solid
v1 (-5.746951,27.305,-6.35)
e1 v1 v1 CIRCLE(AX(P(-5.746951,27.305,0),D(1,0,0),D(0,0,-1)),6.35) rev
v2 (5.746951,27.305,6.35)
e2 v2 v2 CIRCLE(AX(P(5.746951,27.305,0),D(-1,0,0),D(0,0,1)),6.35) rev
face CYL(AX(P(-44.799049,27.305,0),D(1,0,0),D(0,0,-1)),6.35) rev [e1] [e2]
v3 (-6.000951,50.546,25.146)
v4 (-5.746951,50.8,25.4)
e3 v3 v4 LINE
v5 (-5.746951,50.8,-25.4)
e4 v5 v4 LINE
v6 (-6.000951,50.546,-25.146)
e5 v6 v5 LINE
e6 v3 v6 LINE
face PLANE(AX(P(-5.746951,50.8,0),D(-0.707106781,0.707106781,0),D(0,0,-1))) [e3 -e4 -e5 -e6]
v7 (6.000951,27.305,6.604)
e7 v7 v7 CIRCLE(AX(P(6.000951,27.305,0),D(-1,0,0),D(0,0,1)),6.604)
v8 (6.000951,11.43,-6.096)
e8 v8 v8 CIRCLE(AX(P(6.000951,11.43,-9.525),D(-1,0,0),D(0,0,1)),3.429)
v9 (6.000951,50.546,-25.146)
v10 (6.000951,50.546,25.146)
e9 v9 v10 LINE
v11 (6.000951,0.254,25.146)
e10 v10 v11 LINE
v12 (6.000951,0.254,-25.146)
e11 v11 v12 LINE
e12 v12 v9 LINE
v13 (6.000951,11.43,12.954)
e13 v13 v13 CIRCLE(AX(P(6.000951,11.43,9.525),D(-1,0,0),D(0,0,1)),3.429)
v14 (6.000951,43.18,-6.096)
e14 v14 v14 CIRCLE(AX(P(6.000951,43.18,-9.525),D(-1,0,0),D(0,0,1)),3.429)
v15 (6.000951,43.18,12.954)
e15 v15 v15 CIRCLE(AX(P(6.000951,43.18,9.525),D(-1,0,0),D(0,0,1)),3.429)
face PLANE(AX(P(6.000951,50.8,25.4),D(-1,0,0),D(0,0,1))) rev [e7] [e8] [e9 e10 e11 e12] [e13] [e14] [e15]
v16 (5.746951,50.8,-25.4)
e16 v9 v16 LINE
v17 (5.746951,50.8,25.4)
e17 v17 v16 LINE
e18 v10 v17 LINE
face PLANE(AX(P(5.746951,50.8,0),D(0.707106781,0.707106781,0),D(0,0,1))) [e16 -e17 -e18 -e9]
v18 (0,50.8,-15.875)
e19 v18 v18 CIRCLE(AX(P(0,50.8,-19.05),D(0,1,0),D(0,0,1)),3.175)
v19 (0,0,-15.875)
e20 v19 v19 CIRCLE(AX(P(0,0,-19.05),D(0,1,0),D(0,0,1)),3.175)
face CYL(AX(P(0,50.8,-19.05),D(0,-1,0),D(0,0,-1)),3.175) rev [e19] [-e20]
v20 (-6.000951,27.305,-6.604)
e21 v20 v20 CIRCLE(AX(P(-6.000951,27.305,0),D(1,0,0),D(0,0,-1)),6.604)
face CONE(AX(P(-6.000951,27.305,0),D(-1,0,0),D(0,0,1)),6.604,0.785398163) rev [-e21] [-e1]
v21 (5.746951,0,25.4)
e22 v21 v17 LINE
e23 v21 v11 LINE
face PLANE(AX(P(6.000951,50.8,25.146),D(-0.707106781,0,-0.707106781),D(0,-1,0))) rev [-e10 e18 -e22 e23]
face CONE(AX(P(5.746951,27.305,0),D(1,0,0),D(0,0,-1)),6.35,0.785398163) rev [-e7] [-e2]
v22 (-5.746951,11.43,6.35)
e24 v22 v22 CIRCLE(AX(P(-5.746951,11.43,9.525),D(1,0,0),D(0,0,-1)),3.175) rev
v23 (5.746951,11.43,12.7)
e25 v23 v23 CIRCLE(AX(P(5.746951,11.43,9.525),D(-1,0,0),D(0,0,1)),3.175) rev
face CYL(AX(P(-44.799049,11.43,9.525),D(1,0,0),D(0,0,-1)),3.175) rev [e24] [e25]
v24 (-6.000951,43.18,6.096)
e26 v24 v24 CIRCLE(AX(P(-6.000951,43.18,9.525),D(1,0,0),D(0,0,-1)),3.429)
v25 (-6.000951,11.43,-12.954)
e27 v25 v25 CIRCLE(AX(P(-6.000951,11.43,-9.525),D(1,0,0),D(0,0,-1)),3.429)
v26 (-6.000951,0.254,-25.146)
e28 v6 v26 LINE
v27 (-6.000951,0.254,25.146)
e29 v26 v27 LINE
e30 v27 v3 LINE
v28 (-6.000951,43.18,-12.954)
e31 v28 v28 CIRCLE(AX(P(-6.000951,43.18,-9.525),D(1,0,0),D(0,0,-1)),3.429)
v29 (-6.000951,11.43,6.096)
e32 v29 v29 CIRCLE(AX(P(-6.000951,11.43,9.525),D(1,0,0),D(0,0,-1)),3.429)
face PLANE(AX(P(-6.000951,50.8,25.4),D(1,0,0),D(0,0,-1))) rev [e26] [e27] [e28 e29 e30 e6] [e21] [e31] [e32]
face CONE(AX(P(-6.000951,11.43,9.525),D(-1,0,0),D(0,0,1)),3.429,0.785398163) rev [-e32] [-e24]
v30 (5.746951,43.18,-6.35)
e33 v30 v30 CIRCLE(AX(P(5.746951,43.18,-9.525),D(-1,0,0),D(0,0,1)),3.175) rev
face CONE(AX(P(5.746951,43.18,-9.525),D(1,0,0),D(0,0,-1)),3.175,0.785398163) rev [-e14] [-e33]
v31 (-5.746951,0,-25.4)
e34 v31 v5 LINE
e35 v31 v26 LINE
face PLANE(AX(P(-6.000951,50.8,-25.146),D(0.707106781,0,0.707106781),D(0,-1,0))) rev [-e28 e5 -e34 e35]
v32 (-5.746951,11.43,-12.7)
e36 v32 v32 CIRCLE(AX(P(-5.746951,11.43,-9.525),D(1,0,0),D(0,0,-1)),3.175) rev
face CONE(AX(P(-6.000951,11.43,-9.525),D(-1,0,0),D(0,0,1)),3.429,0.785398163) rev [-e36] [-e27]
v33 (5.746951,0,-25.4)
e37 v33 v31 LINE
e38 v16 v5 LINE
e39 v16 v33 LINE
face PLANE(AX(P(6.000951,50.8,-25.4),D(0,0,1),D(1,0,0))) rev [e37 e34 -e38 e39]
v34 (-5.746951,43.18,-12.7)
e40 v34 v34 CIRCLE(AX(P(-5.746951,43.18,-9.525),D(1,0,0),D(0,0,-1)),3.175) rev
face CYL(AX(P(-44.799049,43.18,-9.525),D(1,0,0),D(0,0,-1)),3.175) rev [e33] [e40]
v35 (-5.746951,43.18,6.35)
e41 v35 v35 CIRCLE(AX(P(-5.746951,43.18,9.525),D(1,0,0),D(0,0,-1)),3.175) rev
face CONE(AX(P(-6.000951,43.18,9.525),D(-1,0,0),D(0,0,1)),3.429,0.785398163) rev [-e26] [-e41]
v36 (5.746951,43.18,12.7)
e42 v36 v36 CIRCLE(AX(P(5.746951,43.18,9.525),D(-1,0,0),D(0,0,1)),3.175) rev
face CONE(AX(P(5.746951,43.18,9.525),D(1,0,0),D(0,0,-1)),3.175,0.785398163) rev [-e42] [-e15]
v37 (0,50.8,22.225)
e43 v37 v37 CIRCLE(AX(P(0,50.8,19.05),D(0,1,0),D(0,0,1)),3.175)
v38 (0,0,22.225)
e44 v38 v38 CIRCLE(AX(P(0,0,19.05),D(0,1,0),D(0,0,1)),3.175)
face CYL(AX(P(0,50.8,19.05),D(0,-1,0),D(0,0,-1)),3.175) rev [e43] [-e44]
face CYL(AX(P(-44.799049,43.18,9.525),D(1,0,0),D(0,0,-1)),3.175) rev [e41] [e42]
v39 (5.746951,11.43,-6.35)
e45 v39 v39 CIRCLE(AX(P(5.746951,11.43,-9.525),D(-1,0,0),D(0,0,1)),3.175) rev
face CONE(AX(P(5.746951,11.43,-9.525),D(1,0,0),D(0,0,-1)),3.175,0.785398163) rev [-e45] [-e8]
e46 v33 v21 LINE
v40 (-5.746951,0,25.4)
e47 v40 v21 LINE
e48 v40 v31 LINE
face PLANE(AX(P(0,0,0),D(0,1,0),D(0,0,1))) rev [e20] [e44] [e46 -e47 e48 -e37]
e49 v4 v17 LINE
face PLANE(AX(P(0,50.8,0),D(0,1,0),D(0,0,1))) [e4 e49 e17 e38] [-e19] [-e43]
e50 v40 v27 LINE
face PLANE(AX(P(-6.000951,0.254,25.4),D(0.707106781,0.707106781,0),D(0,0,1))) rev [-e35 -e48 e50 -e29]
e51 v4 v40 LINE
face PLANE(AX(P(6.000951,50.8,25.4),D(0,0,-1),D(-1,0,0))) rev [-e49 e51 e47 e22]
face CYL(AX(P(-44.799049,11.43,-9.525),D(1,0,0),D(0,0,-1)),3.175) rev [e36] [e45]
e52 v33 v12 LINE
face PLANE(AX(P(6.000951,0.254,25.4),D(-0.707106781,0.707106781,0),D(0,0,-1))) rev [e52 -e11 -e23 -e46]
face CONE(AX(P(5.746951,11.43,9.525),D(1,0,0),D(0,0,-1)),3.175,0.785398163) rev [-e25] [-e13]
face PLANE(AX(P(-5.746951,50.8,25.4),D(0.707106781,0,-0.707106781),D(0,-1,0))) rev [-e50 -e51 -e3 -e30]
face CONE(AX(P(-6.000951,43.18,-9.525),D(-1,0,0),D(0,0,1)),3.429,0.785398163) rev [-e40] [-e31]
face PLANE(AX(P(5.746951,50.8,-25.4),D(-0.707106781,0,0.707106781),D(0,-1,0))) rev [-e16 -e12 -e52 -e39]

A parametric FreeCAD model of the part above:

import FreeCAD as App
import Part
import Sketcher
Q = App.Units.Quantity


def edges_at(feature, points):
    """Names of the edges that pass closest to the given points."""
    edges = feature.Shape.Edges
    near = lambda p: min(range(len(edges)), key=lambda i: edges[i].distToShape(Part.Vertex(*p))[0])
    return sorted({f"Edge{near(p) + 1}" for p in points})


def add_polygon(sketch, points):
    """Adds a closed chain of lines whose ends are joined by coincident constraints."""
    first, n = sketch.GeometryCount, len(points)
    for a, b in zip(points, points[1:] + points[:1]):
        sketch.addGeometry(Part.LineSegment(App.Vector(*a, 0), App.Vector(*b, 0)), False)
    for i in range(n):
        sketch.addConstraint(Sketcher.Constraint("Coincident", first + i, 2, first + (i + 1) % n, 1))

doc = App.newDocument("Part")
body = doc.addObject("PartDesign::Body", "Body")

# Sketch on XZ plane
sketch1 = body.newObject("Sketcher::SketchObject", "Sketch")
sketch1.AttachmentSupport = (doc.getObject("XZ_Plane"), [""])
sketch1.MapMode = "FlatFace"
add_polygon(sketch1, [(-6, -25.4), (-6, 25.4), (6, 25.4), (6, -25.4)])  # lines 0-3
sketch1.addGeometry(Part.Circle(App.Vector(0, 19.1, 0), App.Vector(0, 0, 1), 3.2), False)  # 4
sketch1.addGeometry(Part.Circle(App.Vector(0, -19.1, 0), App.Vector(0, 0, 1), 3.2), False)  # 5
sketch1.addConstraint([
    Sketcher.Constraint("Vertical", 0),
    Sketcher.Constraint("Horizontal", 1),
    Sketcher.Constraint("Vertical", 2),
    Sketcher.Constraint("Horizontal", 3),
    Sketcher.Constraint("Equal", 4, 5),
    Sketcher.Constraint("Symmetric", 4, 3, 5, 3, -1, 1),
    Sketcher.Constraint("Symmetric", 0, 2, 2, 2, -1, 1),
    Sketcher.Constraint("PointOnObject", 4, 3, -2),
    Sketcher.Constraint("Diameter", 4, Q("0.25 in")),
    Sketcher.Constraint("DistanceY", 0, 1, 0, 2, Q("2 in")),
    Sketcher.Constraint("DistanceY", 5, 3, 4, 3, Q("1.5 in")),
    Sketcher.Constraint("DistanceX", 1, 1, 1, 2, 12.001903),
])
pad1 = body.newObject("PartDesign::Pad", "Pad")
pad1.Profile = sketch1
pad1.Length = Q("2 in")
pad1.Reversed = True

# Sketch on YZ plane
sketch2 = body.newObject("Sketcher::SketchObject", "Sketch001")
sketch2.AttachmentSupport = (doc.getObject("YZ_Plane"), [""])
sketch2.MapMode = "FlatFace"
sketch2.AttachmentOffset = App.Placement(App.Vector(0, 0, 6.000951), App.Rotation())
sketch2.addGeometry([
    Part.Circle(App.Vector(43.2, 9.5, 0), App.Vector(0, 0, 1), 3.2),  # 0
    Part.Circle(App.Vector(43.2, -9.5, 0), App.Vector(0, 0, 1), 3.2),  # 1
    Part.Circle(App.Vector(27.3, 0, 0), App.Vector(0, 0, 1), 6.3),  # 2
    Part.Circle(App.Vector(11.4, 9.5, 0), App.Vector(0, 0, 1), 3.2),  # 3
    Part.Circle(App.Vector(11.4, -9.5, 0), App.Vector(0, 0, 1), 3.2),  # 4
], False)
sketch2.addConstraint([
    Sketcher.Constraint("Equal", 0, 1),
    Sketcher.Constraint("Equal", 1, 3),
    Sketcher.Constraint("Equal", 3, 4),
    Sketcher.Constraint("Symmetric", 0, 3, 1, 3, -1),
    Sketcher.Constraint("Symmetric", 3, 3, 4, 3, -1),
    Sketcher.Constraint("PointOnObject", 2, 3, -1),
    Sketcher.Constraint("Horizontal", 0, 3, 3, 3),
    Sketcher.Constraint("Diameter", 2, Q("0.5 in")),
    Sketcher.Constraint("Diameter", 0, Q("0.25 in")),
    Sketcher.Constraint("DistanceX", -1, 1, 0, 3, Q("1.7 in")),
    Sketcher.Constraint("DistanceX", -1, 1, 3, 3, Q("0.45 in")),
    Sketcher.Constraint("DistanceY", 1, 3, 0, 3, Q("0.75 in")),
    Sketcher.Constraint("DistanceX", -1, 1, 2, 3, Q("1.075 in")),
])
pocket1 = body.newObject("PartDesign::Pocket", "Pocket")
pocket1.Profile = sketch2
pocket1.Length = Q("2 in")
doc.recompute()

chamfer = body.newObject("PartDesign::Chamfer", "Chamfer")
chamfer.Base = (pocket1, edges_at(pocket1, [
    (6.001, 50.8, 0),
    (-6.001, 11.43, -6.35),
    (6.001, 11.43, -6.35),
    (-6.001, 11.43, 12.7),
    (6.001, 11.43, 12.7),
    (-6.001, 27.305, 6.35),
    (6.001, 27.305, 6.35),
    (-6.001, 43.18, -6.35),
    (6.001, 43.18, -6.35),
    (-6.001, 43.18, 12.7),
    (6.001, 43.18, 12.7),
    (-6.001, 50.8, 0),
    (6.001, 0, 0),
    (-6.001, 0, 0),
    (-6.001, 25.4, -25.4),
    (6.001, 25.4, -25.4),
    (6.001, 25.4, 25.4),
    (-6.001, 25.4, 25.4),
]))
chamfer.Size = Q("0.01 in")

doc.recompute()
